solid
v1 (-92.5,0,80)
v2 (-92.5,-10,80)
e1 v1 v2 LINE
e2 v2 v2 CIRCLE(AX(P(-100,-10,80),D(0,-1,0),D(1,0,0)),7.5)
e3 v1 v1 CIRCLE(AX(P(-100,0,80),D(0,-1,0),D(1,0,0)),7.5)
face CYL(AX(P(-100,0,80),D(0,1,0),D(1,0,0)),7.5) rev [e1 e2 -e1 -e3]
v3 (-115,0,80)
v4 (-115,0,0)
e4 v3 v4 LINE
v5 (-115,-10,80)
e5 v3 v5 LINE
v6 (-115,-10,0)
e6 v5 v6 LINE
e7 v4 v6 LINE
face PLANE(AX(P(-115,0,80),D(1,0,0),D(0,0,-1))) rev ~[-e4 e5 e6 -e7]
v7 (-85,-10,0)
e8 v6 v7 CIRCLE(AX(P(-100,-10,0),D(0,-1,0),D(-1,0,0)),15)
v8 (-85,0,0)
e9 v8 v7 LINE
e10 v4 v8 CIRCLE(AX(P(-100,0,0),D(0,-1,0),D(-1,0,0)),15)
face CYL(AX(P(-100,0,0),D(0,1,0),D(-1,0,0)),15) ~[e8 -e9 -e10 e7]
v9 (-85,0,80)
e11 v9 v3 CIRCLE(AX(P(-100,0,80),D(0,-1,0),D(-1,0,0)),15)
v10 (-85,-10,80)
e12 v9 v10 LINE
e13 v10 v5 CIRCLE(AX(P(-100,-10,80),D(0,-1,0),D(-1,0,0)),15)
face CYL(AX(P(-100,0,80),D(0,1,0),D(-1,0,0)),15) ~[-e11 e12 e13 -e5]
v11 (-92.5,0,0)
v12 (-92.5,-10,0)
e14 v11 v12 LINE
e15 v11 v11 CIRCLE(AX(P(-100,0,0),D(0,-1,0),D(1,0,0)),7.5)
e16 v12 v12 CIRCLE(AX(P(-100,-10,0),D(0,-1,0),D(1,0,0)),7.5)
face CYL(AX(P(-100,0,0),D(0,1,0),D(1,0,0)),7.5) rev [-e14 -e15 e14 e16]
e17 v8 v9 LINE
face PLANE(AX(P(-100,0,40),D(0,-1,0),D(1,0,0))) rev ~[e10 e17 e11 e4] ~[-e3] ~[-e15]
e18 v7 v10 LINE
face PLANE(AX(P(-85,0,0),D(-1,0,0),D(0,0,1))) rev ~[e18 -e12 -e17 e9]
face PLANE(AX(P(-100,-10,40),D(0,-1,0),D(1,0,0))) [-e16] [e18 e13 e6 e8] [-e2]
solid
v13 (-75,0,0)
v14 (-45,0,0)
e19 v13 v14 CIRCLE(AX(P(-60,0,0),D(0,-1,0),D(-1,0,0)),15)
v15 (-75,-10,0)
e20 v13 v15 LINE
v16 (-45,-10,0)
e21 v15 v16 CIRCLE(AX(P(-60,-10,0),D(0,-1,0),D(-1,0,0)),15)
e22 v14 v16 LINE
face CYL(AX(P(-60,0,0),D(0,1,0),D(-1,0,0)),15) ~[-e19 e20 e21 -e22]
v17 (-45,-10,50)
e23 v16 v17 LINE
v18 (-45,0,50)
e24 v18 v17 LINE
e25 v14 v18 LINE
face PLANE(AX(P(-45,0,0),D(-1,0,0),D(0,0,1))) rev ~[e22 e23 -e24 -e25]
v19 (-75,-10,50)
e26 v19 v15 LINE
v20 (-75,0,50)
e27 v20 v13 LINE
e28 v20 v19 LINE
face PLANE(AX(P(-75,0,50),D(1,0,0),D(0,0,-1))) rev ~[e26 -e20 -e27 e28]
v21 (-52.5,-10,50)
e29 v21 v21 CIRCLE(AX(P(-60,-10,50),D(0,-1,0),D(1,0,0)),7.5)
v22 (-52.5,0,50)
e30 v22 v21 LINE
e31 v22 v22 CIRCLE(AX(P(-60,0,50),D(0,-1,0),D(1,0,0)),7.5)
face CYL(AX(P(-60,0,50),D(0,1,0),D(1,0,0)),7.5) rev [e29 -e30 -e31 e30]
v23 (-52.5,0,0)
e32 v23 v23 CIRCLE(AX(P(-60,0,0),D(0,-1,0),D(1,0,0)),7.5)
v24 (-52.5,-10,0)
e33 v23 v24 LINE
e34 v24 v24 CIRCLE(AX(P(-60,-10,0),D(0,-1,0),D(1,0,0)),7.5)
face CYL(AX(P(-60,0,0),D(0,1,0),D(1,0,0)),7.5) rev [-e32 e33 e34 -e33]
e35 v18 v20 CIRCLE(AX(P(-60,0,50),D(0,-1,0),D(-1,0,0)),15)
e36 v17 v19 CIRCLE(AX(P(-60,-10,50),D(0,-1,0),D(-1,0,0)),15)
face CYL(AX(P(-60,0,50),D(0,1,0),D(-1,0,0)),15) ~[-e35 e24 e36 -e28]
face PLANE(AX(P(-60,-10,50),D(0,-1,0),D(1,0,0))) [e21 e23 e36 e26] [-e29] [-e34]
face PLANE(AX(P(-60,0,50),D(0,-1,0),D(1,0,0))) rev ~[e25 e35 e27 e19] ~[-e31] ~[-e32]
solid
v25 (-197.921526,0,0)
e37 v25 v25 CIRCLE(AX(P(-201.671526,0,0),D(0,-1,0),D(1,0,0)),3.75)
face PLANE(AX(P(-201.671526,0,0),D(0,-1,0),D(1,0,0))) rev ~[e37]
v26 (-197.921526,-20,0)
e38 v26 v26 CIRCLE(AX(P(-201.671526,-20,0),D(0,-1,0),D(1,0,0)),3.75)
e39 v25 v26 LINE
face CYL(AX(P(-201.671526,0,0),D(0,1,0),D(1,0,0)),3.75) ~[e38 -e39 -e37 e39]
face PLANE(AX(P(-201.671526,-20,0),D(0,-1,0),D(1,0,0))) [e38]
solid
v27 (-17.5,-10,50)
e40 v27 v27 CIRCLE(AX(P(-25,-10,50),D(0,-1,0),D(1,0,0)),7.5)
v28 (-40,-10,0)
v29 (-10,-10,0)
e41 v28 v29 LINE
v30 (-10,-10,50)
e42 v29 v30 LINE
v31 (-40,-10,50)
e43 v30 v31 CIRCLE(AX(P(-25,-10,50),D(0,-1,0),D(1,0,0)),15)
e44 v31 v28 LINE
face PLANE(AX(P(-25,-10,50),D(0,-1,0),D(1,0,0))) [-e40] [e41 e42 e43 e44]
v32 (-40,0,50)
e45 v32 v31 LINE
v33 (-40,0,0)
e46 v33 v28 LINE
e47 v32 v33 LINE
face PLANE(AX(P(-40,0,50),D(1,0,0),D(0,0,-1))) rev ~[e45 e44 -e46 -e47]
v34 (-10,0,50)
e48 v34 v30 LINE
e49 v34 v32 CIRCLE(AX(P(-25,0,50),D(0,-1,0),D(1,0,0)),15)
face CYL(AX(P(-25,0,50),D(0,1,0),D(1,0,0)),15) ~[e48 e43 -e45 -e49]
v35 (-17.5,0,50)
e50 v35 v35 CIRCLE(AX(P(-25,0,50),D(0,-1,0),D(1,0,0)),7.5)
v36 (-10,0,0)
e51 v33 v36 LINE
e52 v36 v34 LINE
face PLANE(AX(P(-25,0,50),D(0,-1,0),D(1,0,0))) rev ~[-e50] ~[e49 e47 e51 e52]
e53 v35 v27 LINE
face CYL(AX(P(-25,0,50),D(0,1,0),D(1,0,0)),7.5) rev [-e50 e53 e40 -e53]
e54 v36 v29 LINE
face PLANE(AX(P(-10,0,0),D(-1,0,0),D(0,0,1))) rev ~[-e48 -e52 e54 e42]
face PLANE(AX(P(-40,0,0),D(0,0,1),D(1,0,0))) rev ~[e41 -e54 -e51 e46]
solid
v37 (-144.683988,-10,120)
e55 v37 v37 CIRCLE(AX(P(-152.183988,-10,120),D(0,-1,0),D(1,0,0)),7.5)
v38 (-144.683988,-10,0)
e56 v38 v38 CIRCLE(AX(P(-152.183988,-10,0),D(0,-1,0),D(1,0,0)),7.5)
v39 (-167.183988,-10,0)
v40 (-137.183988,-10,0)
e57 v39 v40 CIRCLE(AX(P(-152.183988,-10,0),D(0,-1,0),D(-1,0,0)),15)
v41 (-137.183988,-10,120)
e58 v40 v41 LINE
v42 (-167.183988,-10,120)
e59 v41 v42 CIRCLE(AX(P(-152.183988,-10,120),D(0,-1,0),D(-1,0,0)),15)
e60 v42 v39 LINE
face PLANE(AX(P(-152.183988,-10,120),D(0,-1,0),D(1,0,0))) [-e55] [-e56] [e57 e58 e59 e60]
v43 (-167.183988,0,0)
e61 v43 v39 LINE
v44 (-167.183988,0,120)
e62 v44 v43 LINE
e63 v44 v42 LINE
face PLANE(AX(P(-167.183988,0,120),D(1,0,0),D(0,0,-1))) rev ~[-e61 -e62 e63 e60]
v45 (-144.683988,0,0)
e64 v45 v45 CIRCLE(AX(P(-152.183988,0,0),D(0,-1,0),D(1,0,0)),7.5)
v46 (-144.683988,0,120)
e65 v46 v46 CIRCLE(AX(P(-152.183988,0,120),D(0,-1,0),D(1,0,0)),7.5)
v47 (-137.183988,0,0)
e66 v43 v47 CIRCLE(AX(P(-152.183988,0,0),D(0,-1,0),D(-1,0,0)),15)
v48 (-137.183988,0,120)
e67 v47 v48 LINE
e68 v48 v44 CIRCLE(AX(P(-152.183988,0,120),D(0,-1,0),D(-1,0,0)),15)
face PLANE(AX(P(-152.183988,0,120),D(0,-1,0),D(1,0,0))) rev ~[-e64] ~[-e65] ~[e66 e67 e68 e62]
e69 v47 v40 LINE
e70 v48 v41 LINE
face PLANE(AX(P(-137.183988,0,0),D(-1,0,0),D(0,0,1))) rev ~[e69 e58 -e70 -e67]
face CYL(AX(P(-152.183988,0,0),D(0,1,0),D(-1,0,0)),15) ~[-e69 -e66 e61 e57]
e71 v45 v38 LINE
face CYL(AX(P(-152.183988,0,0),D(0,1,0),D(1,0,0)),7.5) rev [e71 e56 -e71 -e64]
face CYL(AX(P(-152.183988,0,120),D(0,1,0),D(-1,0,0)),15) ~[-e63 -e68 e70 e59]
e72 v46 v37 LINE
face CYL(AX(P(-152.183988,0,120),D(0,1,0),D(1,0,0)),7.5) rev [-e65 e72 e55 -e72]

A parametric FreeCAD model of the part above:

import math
import FreeCAD as App
import Part
import Sketcher

V = App.Vector
Q = App.Units.Quantity

doc = App.newDocument("Part")
body = doc.addObject("PartDesign::Body", "Body")

# Sketch on XZ plane
sketch1 = doc.addObject("Sketcher::SketchObject", "Sketch")
body.addObject(sketch1)
sketch1.AttachmentSupport = (doc.XZ_Plane, [""])
sketch1.MapMode = "FlatFace"
sketch1.addGeometry([
    Part.ArcOfCircle(Part.Circle(V(-25, 50, 0), V(0, 0, 1), 15), math.radians(0), math.radians(180)),  # 0
    Part.LineSegment(V(-40, 50, 0), V(-40, 0, 0)),  # 1
    Part.LineSegment(V(-40, 0, 0), V(-10, 0, 0)),  # 2
    Part.LineSegment(V(-10, 0, 0), V(-10, 50, 0)),  # 3
    Part.Circle(V(-25, 50, 0), V(0, 0, 1), 7.5),  # 4
], False)
sketch1.addConstraint([
    Sketcher.Constraint("Tangent", 0, 2, 1, 1),
    Sketcher.Constraint("Coincident", 1, 2, 2, 1),
    Sketcher.Constraint("Coincident", 2, 2, 3, 1),
    Sketcher.Constraint("Tangent", 3, 2, 0, 1),
    Sketcher.Constraint("Vertical", 1),
    Sketcher.Constraint("Horizontal", 2),
    Sketcher.Constraint("Vertical", 3),
    Sketcher.Constraint("Coincident", 4, 3, 0, 3),
    Sketcher.Constraint("PointOnObject", 1, 2, -1),
    Sketcher.Constraint("Diameter", 4, Q("15 mm")),
    Sketcher.Constraint("Radius", 0, Q("15 mm")),
    Sketcher.Constraint("DistanceY", 1, 2, 1, 1, Q("50 mm")),
    Sketcher.Constraint("DistanceX", 0, 3, -1, 1, Q("25 mm")),
])
pad1 = doc.addObject("PartDesign::Pad", "Pad")
body.addObject(pad1)
pad1.Profile = sketch1
pad1.Length = 10
body2 = doc.addObject("PartDesign::Body", "Body001")

# Sketch on XZ plane
sketch2 = doc.addObject("Sketcher::SketchObject", "Sketch001")
body2.addObject(sketch2)
sketch2.AttachmentSupport = (doc.getObject("XZ_Plane001"), [""])
sketch2.MapMode = "FlatFace"
sketch2.addGeometry([
    Part.ArcOfCircle(Part.Circle(V(-60, 50, 0), V(0, 0, 1), 15), math.radians(0), math.radians(180)),  # 0
    Part.LineSegment(V(-75, 50, 0), V(-75, 0, 0)),  # 1
    Part.ArcOfCircle(Part.Circle(V(-60, 0, 0), V(0, 0, 1), 15), math.radians(180), math.radians(360)),  # 2
    Part.LineSegment(V(-45, 0, 0), V(-45, 50, 0)),  # 3
    Part.Circle(V(-60, 0, 0), V(0, 0, 1), 7.5),  # 4
    Part.Circle(V(-60, 50, 0), V(0, 0, 1), 7.5),  # 5
], False)
sketch2.addConstraint([
    Sketcher.Constraint("Tangent", 0, 2, 1, 1),
    Sketcher.Constraint("Tangent", 1, 2, 2, 1),
    Sketcher.Constraint("Tangent", 2, 2, 3, 1),
    Sketcher.Constraint("Tangent", 3, 2, 0, 1),
    Sketcher.Constraint("Vertical", 1),
    Sketcher.Constraint("Vertical", 3),
    Sketcher.Constraint("Coincident", 4, 3, 2, 3),
    Sketcher.Constraint("Coincident", 5, 3, 0, 3),
    Sketcher.Constraint("Equal", 4, 5),
    Sketcher.Constraint("PointOnObject", 2, 3, -1),
    Sketcher.Constraint("Diameter", 4, Q("15 mm")),
    Sketcher.Constraint("Radius", 0, Q("15 mm")),
    Sketcher.Constraint("DistanceY", 1, 2, 1, 1, Q("50 mm")),
    Sketcher.Constraint("DistanceX", 0, 3, -1, 1, Q("60 mm")),
])
pad2 = doc.addObject("PartDesign::Pad", "Pad001")
body2.addObject(pad2)
pad2.Profile = sketch2
pad2.Length = 10
body3 = doc.addObject("PartDesign::Body", "Body002")

# Sketch on XZ plane
sketch3 = doc.addObject("Sketcher::SketchObject", "Sketch002")
body3.addObject(sketch3)
sketch3.AttachmentSupport = (doc.getObject("XZ_Plane002"), [""])
sketch3.MapMode = "FlatFace"
sketch3.addGeometry([
    Part.LineSegment(V(-115, 80, 0), V(-115, 0, 0)),  # 0
    Part.ArcOfCircle(Part.Circle(V(-100, 0, 0), V(0, 0, 1), 15), math.radians(180), math.radians(360)),  # 1
    Part.LineSegment(V(-85, 0, 0), V(-85, 80, 0)),  # 2
    Part.ArcOfCircle(Part.Circle(V(-100, 80, 0), V(0, 0, 1), 15), math.radians(0), math.radians(180)),  # 3
    Part.Circle(V(-100, 0, 0), V(0, 0, 1), 7.5),  # 4
    Part.Circle(V(-100, 80, 0), V(0, 0, 1), 7.5),  # 5
], False)
sketch3.addConstraint([
    Sketcher.Constraint("Tangent", 0, 2, 1, 1),
    Sketcher.Constraint("Tangent", 1, 2, 2, 1),
    Sketcher.Constraint("Tangent", 2, 2, 3, 1),
    Sketcher.Constraint("Tangent", 3, 2, 0, 1),
    Sketcher.Constraint("Vertical", 0),
    Sketcher.Constraint("Vertical", 2),
    Sketcher.Constraint("Coincident", 4, 3, 1, 3),
    Sketcher.Constraint("Coincident", 5, 3, 3, 3),
    Sketcher.Constraint("Equal", 4, 5),
    Sketcher.Constraint("PointOnObject", 1, 3, -1),
    Sketcher.Constraint("Diameter", 4, Q("15 mm")),
    Sketcher.Constraint("Radius", 1, Q("15 mm")),
    Sketcher.Constraint("DistanceY", 0, 2, 0, 1, Q("80 mm")),
    Sketcher.Constraint("DistanceX", 1, 3, -1, 1, Q("100 mm")),
])
pad3 = doc.addObject("PartDesign::Pad", "Pad002")
body3.addObject(pad3)
pad3.Profile = sketch3
pad3.Length = 10
body4 = doc.addObject("PartDesign::Body", "Body003")

# Sketch on XZ plane
sketch4 = doc.addObject("Sketcher::SketchObject", "Sketch003")
body4.addObject(sketch4)
sketch4.AttachmentSupport = (doc.getObject("XZ_Plane003"), [""])
sketch4.MapMode = "FlatFace"
sketch4.addGeometry([
    Part.ArcOfCircle(Part.Circle(V(-152.183988, 120, 0), V(0, 0, 1), 15), math.radians(0), math.radians(180)),  # 0
    Part.LineSegment(V(-167.183988, 120, 0), V(-167.183988, 0, 0)),  # 1
    Part.ArcOfCircle(Part.Circle(V(-152.183988, 0, 0), V(0, 0, 1), 15), math.radians(180), math.radians(360)),  # 2
    Part.LineSegment(V(-137.183988, 0, 0), V(-137.183988, 120, 0)),  # 3
    Part.Circle(V(-152.183988, 0, 0), V(0, 0, 1), 7.5),  # 4
    Part.Circle(V(-152.183988, 120, 0), V(0, 0, 1), 7.5),  # 5
], False)
sketch4.addConstraint([
    Sketcher.Constraint("Tangent", 0, 2, 1, 1),
    Sketcher.Constraint("Tangent", 1, 2, 2, 1),
    Sketcher.Constraint("Tangent", 2, 2, 3, 1),
    Sketcher.Constraint("Tangent", 3, 2, 0, 1),
    Sketcher.Constraint("Vertical", 1),
    Sketcher.Constraint("Vertical", 3),
    Sketcher.Constraint("Coincident", 4, 3, 2, 3),
    Sketcher.Constraint("Coincident", 5, 3, 0, 3),
    Sketcher.Constraint("Equal", 4, 5),
    Sketcher.Constraint("PointOnObject", 2, 3, -1),
    Sketcher.Constraint("Diameter", 4, Q("15 mm")),
    Sketcher.Constraint("Radius", 0, Q("15 mm")),
    Sketcher.Constraint("DistanceY", 1, 2, 1, 1, Q("120 mm")),
    Sketcher.Constraint("DistanceX", 0, 3, -1, 1, Q("152.183988 mm")),
])
pad4 = doc.addObject("PartDesign::Pad", "Pad003")
body4.addObject(pad4)
pad4.Profile = sketch4
pad4.Length = 10
body5 = doc.addObject("PartDesign::Body", "Body004")

# Sketch on XZ plane
sketch5 = doc.addObject("Sketcher::SketchObject", "Sketch004")
body5.addObject(sketch5)
sketch5.AttachmentSupport = (doc.getObject("XZ_Plane004"), [""])
sketch5.MapMode = "FlatFace"
sketch5.addGeometry(Part.Circle(V(-201.671526, 0, 0), V(0, 0, 1), 3.75), False)
sketch5.addConstraint([
    Sketcher.Constraint("PointOnObject", 0, 3, -1),
    Sketcher.Constraint("Diameter", 0, Q("7.5 mm")),
    Sketcher.Constraint("DistanceX", 0, 3, -1, 1, Q("201.671526 mm")),
])
pad5 = doc.addObject("PartDesign::Pad", "Pad004")
body5.addObject(pad5)
pad5.Profile = sketch5
pad5.Length = 20

doc.recompute()
